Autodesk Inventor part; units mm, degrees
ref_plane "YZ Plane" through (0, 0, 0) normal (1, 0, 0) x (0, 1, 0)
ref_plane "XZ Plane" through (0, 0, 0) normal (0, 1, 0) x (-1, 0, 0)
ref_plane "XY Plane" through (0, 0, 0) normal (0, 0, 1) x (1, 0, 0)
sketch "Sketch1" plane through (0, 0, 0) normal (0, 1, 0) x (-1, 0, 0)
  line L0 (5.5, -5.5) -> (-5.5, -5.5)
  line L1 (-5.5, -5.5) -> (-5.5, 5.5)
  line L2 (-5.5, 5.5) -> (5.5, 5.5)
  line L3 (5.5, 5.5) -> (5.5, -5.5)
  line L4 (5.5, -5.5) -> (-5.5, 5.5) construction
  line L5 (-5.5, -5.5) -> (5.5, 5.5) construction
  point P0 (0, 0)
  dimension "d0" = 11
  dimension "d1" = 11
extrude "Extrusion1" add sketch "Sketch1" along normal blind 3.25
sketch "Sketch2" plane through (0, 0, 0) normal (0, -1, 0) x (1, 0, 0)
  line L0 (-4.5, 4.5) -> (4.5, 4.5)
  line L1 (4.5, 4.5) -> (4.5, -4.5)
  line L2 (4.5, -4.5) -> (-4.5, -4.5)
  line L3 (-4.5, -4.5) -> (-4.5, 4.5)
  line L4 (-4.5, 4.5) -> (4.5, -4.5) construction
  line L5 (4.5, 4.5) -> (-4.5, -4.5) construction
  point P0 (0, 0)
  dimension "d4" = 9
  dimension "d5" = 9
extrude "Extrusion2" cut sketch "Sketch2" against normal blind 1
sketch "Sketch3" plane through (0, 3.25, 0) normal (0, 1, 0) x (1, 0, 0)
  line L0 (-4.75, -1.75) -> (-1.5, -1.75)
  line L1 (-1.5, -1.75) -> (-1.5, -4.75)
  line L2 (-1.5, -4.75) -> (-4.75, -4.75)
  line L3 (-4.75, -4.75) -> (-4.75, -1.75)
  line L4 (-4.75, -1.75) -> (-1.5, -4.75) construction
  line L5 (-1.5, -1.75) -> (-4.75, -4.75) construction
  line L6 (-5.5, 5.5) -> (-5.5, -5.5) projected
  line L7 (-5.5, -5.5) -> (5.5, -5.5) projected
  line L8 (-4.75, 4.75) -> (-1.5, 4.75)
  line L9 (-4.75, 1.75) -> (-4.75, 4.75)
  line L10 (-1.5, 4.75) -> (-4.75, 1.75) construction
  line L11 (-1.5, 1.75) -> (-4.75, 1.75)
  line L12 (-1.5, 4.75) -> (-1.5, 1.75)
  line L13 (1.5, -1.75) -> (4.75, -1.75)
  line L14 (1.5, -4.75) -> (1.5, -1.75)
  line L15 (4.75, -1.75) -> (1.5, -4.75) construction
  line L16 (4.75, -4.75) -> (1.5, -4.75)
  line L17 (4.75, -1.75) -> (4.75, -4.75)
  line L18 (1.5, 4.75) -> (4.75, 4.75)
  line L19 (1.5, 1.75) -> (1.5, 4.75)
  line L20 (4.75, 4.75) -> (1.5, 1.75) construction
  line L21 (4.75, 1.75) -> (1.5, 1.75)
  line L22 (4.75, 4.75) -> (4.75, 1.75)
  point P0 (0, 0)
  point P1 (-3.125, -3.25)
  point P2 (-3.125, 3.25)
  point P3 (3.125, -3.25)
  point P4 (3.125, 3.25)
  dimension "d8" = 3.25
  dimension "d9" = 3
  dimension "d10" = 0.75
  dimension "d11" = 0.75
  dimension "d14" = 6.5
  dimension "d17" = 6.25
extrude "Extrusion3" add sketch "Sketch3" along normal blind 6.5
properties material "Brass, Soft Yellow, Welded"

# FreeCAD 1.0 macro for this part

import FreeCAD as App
import Part
import Sketcher

V = App.Vector

doc = App.newDocument("Part")
body = doc.addObject("PartDesign::Body", "Body")

sketch1 = doc.addObject("Sketcher::SketchObject", "Sketch")
body.addObject(sketch1)
sketch1.AttachmentSupport = (doc.XZ_Plane, [""])
sketch1.MapMode = "FlatFace"
sketch1.addGeometry([
    Part.LineSegment(V(6, -6, 0), V(-6, -6, 0)),
    Part.LineSegment(V(-6, -6, 0), V(-6, 6, 0)),
    Part.LineSegment(V(-6, 6, 0), V(6, 6, 0)),
    Part.LineSegment(V(6, 6, 0), V(6, -6, 0)),
], False)
sketch1.addConstraint([
    Sketcher.Constraint("Coincident", 0, 2, 1, 1),
    Sketcher.Constraint("Coincident", 1, 2, 2, 1),
    Sketcher.Constraint("Coincident", 2, 2, 3, 1),
    Sketcher.Constraint("Coincident", 3, 2, 0, 1),
    Sketcher.Constraint("Horizontal", 0),
    Sketcher.Constraint("Vertical", 1),
    Sketcher.Constraint("Horizontal", 2),
    Sketcher.Constraint("Vertical", 3),
    Sketcher.Constraint("Symmetric", 0, 2, 2, 2, -1, 1),
    Sketcher.Constraint("Equal", 2, 1),
    Sketcher.Constraint("DistanceX", 0, 2, 0, 1, 11.0),
])
pad1 = doc.addObject("PartDesign::Pad", "Pad")
body.addObject(pad1)
pad1.Profile = sketch1
pad1.Length = 3.25
pad1.Reversed = True

sketch2 = doc.addObject("Sketcher::SketchObject", "Sketch001")
body.addObject(sketch2)
sketch2.AttachmentSupport = (doc.XZ_Plane, [""])
sketch2.MapMode = "FlatFace"
sketch2.addGeometry([
    Part.LineSegment(V(4, 4, 0), V(-4, 4, 0)),
    Part.LineSegment(V(-4, 4, 0), V(-4, -4, 0)),
    Part.LineSegment(V(-4, -4, 0), V(4, -4, 0)),
    Part.LineSegment(V(4, -4, 0), V(4, 4, 0)),
], False)
sketch2.addConstraint([
    Sketcher.Constraint("Coincident", 0, 2, 1, 1),
    Sketcher.Constraint("Coincident", 1, 2, 2, 1),
    Sketcher.Constraint("Coincident", 2, 2, 3, 1),
    Sketcher.Constraint("Coincident", 3, 2, 0, 1),
    Sketcher.Constraint("Horizontal", 0),
    Sketcher.Constraint("Vertical", 1),
    Sketcher.Constraint("Horizontal", 2),
    Sketcher.Constraint("Vertical", 3),
    Sketcher.Constraint("Symmetric", 0, 2, 2, 2, -1, 1),
    Sketcher.Constraint("Equal", 2, 1),
    Sketcher.Constraint("DistanceX", 0, 2, 0, 1, 9.0),
])
pocket1 = doc.addObject("PartDesign::Pocket", "Pocket")
body.addObject(pocket1)
pocket1.Profile = sketch2
pocket1.Length = 1

sketch3 = doc.addObject("Sketcher::SketchObject", "Sketch002")
body.addObject(sketch3)
sketch3.AttachmentSupport = (doc.XZ_Plane, [""])
sketch3.MapMode = "FlatFace"
sketch3.AttachmentOffset = App.Placement(V(0, 0, -3.25), App.Rotation())
sketch3.addGeometry([
    Part.LineSegment(V(-1.5, 1.8, 0), V(-4.8, 1.8, 0)),
    Part.LineSegment(V(-4.8, 1.8, 0), V(-4.8, 4.8, 0)),
    Part.LineSegment(V(-4.8, 4.8, 0), V(-1.5, 4.8, 0)),
    Part.LineSegment(V(-1.5, 4.8, 0), V(-1.5, 1.8, 0)),
    Part.LineSegment(V(-1.5, -4.8, 0), V(-4.8, -4.8, 0)),
    Part.LineSegment(V(-4.8, -4.8, 0), V(-4.8, -1.8, 0)),
    Part.LineSegment(V(-4.8, -1.8, 0), V(-1.5, -1.8, 0)),
    Part.LineSegment(V(-1.5, -1.8, 0), V(-1.5, -4.8, 0)),
    Part.LineSegment(V(4.8, 1.8, 0), V(1.5, 1.8, 0)),
    Part.LineSegment(V(1.5, 1.8, 0), V(1.5, 4.8, 0)),
    Part.LineSegment(V(1.5, 4.8, 0), V(4.8, 4.8, 0)),
    Part.LineSegment(V(4.8, 4.8, 0), V(4.8, 1.8, 0)),
    Part.LineSegment(V(4.8, -4.8, 0), V(1.5, -4.8, 0)),
    Part.LineSegment(V(1.5, -4.8, 0), V(1.5, -1.8, 0)),
    Part.LineSegment(V(1.5, -1.8, 0), V(4.8, -1.8, 0)),
    Part.LineSegment(V(4.8, -1.8, 0), V(4.8, -4.8, 0)),
], False)
sketch3.addConstraint([
    Sketcher.Constraint("Coincident", 0, 2, 1, 1),
    Sketcher.Constraint("Coincident", 1, 2, 2, 1),
    Sketcher.Constraint("Coincident", 2, 2, 3, 1),
    Sketcher.Constraint("Coincident", 3, 2, 0, 1),
    Sketcher.Constraint("Coincident", 4, 2, 5, 1),
    Sketcher.Constraint("Coincident", 5, 2, 6, 1),
    Sketcher.Constraint("Coincident", 6, 2, 7, 1),
    Sketcher.Constraint("Coincident", 7, 2, 4, 1),
    Sketcher.Constraint("Coincident", 8, 2, 9, 1),
    Sketcher.Constraint("Coincident", 9, 2, 10, 1),
    Sketcher.Constraint("Coincident", 10, 2, 11, 1),
    Sketcher.Constraint("Coincident", 11, 2, 8, 1),
    Sketcher.Constraint("Coincident", 12, 2, 13, 1),
    Sketcher.Constraint("Coincident", 13, 2, 14, 1),
    Sketcher.Constraint("Coincident", 14, 2, 15, 1),
    Sketcher.Constraint("Coincident", 15, 2, 12, 1),
    Sketcher.Constraint("Horizontal", 0),
    Sketcher.Constraint("Vertical", 1),
    Sketcher.Constraint("Horizontal", 2),
    Sketcher.Constraint("Vertical", 3),
    Sketcher.Constraint("Horizontal", 4),
    Sketcher.Constraint("Vertical", 5),
    Sketcher.Constraint("Horizontal", 6),
    Sketcher.Constraint("Vertical", 7),
    Sketcher.Constraint("Horizontal", 8),
    Sketcher.Constraint("Vertical", 9),
    Sketcher.Constraint("Horizontal", 10),
    Sketcher.Constraint("Vertical", 11),
    Sketcher.Constraint("Horizontal", 12),
    Sketcher.Constraint("Vertical", 13),
    Sketcher.Constraint("Horizontal", 14),
    Sketcher.Constraint("Vertical", 15),
    Sketcher.Constraint("Symmetric", 6, 2, 8, 2, -1, 1),
    Sketcher.Constraint("Symmetric", 4, 2, 10, 2, -1, 1),
    Sketcher.Constraint("Symmetric", 2, 2, 12, 2, -1, 1),
    Sketcher.Constraint("Symmetric", 0, 2, 14, 2, -1, 1),
    Sketcher.Constraint("Symmetric", 3, 2, 8, 2, -2),
    Sketcher.Constraint("Symmetric", 1, 2, 10, 2, -2),
    Sketcher.Constraint("DistanceY", 1, 1, 1, 2, 3.0),
    Sketcher.Constraint("DistanceX", 3, 2, 8, 2, 3.0),
    Sketcher.Constraint("DistanceX", 0, 2, 0, 1, 3.25),
    Sketcher.Constraint("DistanceY", 4, 2, 0, 2, 6.5),
])
pad2 = doc.addObject("PartDesign::Pad", "Pad001")
body.addObject(pad2)
pad2.Profile = sketch3
pad2.Length = 6.5
pad2.Reversed = True

doc.recompute()
